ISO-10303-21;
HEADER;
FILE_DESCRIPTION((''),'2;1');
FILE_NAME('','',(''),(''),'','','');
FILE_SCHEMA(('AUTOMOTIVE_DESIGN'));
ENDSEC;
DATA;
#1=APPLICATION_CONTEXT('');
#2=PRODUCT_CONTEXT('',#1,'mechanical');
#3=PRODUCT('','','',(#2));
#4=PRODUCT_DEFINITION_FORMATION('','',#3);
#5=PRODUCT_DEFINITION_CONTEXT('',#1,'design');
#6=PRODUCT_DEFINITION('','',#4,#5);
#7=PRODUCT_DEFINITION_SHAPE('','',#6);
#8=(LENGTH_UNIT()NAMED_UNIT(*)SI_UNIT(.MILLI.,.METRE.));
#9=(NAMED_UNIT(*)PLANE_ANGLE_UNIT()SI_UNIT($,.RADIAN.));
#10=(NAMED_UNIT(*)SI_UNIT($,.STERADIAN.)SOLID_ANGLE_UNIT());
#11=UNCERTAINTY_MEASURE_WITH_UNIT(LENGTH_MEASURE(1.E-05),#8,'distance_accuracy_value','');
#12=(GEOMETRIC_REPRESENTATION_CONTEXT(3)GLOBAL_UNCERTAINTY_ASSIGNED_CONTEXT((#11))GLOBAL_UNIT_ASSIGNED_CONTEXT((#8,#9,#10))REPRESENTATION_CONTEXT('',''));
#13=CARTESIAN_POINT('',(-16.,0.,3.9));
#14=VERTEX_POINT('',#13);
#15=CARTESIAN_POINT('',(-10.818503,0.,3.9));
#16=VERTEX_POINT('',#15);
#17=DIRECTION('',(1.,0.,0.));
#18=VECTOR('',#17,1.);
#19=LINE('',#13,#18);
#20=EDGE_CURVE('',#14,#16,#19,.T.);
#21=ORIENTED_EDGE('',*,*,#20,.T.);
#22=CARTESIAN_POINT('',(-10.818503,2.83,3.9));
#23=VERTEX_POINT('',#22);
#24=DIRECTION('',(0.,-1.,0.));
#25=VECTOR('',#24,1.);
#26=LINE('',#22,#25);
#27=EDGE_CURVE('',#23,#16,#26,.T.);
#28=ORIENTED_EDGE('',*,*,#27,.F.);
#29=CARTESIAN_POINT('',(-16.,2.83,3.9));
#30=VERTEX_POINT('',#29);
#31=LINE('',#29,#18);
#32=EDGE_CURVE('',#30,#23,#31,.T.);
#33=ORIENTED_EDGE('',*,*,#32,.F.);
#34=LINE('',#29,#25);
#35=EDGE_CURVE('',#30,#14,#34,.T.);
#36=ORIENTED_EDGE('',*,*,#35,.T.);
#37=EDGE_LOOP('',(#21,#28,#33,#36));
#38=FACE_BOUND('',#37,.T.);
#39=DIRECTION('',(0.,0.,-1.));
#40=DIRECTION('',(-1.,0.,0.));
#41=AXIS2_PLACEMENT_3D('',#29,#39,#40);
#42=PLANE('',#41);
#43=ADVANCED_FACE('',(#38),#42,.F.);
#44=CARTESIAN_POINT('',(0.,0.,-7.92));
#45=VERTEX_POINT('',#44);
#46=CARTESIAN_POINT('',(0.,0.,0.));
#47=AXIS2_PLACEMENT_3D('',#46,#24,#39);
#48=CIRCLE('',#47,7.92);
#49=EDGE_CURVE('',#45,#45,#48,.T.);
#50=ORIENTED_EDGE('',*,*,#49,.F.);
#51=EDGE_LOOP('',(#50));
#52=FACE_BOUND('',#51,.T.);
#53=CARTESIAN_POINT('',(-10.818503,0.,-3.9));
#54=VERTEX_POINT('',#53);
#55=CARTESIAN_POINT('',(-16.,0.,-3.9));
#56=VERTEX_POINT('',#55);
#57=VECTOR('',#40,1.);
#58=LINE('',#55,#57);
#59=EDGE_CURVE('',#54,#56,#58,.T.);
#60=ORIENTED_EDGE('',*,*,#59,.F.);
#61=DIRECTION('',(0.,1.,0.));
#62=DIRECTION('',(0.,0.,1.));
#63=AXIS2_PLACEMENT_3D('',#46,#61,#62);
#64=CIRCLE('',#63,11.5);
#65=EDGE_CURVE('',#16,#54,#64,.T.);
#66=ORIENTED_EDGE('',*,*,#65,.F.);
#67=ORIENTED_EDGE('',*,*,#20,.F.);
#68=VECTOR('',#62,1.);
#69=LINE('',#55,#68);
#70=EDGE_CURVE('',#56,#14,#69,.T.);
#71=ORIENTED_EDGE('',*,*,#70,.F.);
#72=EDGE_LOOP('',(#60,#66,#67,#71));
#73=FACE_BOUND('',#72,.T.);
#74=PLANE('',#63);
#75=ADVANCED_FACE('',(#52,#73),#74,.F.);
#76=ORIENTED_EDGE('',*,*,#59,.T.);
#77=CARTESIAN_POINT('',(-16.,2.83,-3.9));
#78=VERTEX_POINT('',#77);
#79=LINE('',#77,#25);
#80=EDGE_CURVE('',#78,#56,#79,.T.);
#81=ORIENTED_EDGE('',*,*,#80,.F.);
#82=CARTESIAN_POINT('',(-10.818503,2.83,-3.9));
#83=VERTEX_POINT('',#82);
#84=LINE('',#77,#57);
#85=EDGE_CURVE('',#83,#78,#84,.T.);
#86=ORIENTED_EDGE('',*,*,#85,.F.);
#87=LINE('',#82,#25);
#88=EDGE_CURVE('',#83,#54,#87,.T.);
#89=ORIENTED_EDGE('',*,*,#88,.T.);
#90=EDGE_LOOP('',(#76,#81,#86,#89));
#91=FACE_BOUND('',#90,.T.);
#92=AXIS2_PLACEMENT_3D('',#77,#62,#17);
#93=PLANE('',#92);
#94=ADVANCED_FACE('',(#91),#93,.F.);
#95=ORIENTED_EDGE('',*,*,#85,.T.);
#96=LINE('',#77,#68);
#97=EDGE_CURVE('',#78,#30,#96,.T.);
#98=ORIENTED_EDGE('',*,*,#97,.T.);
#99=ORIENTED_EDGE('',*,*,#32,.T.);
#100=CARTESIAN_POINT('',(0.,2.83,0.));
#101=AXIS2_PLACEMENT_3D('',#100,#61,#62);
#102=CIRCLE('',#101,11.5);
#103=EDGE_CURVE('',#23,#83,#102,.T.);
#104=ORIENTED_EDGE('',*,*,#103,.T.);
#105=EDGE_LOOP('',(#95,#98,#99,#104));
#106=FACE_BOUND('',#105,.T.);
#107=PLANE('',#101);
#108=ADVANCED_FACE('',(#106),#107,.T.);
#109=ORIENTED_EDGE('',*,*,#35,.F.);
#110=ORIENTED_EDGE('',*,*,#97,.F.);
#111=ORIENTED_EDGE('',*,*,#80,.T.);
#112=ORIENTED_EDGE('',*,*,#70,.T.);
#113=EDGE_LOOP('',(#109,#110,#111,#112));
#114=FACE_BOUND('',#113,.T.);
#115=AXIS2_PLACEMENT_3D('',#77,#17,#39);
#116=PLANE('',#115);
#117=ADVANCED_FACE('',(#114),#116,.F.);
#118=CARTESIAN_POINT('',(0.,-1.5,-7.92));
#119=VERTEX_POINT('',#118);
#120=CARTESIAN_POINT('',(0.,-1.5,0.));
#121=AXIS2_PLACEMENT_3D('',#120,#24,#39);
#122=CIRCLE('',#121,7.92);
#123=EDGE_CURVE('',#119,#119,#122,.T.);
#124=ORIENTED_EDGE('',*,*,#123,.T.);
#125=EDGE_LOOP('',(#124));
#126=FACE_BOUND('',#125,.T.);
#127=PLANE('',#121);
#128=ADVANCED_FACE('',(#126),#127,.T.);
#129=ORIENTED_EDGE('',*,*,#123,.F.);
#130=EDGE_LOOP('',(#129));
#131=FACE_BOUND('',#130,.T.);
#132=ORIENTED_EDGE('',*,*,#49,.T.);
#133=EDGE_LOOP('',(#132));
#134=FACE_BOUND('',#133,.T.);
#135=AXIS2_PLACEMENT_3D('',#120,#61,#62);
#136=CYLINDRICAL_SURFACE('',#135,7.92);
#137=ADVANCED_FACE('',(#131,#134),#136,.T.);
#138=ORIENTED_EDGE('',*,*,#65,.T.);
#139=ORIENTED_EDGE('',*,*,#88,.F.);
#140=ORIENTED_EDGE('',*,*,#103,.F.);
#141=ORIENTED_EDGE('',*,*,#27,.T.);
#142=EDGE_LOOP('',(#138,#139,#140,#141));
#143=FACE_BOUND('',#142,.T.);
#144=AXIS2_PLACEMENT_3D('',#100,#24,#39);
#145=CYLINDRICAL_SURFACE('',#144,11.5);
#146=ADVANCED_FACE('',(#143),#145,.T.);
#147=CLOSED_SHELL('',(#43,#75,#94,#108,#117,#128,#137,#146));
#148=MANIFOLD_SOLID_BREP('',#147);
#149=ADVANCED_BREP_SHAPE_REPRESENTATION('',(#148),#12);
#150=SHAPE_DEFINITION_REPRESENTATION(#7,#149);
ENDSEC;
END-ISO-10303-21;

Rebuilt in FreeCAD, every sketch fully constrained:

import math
import FreeCAD as App
import Part
import Sketcher

doc = App.newDocument("Part")
params = doc.addObject("Spreadsheet::Sheet", "Params")
for row, (alias, value) in enumerate([
    ("sketch1_radius", "11.5 mm"),
    ("sketch1_height", "7.8 mm"),
    ("pad1_length", "2.83 mm"),
    ("sketch2_diameter", "15.84 mm"),
    ("pad2_length", "1.5 mm"),
], start=1):
    params.set(f"A{row}", alias)
    params.set(f"B{row}", "=" + value)
    params.setAlias(f"B{row}", alias)

body = doc.addObject("PartDesign::Body", "Body")

sketch1 = body.newObject("Sketcher::SketchObject", "Sketch")
sketch1.AttachmentSupport = (doc.getObject("XZ_Plane"), [""])
sketch1.MapMode = "FlatFace"
sketch1.addGeometry([
    Part.LineSegment(App.Vector(-11, -4, 0), App.Vector(-16, -4, 0)),
    Part.LineSegment(App.Vector(-16, -4, 0), App.Vector(-16, 4, 0)),
    Part.LineSegment(App.Vector(-16, 4, 0), App.Vector(-11, 4, 0)),
    Part.ArcOfCircle(Part.Circle(App.Vector(0, 0, 0), App.Vector(0, 0, 1), 12), math.radians(-160), math.radians(160)),
], False)
sketch1.addConstraint([
    Sketcher.Constraint("Coincident", 0, 2, 1, 1),
    Sketcher.Constraint("Coincident", 1, 2, 2, 1),
    Sketcher.Constraint("Coincident", 2, 2, 3, 2),
    Sketcher.Constraint("Coincident", 3, 1, 0, 1),
    Sketcher.Constraint("Horizontal", 0),
    Sketcher.Constraint("Vertical", 1),
    Sketcher.Constraint("Horizontal", 2),
    Sketcher.Constraint("Coincident", 3, 3, -1, 1),
    Sketcher.Constraint("Vertical", 2, 2, 3, 1),
    Sketcher.Constraint("Radius", 3, 11.5),
    Sketcher.Constraint("DistanceY", 1, 1, 1, 2, 7.8),
    Sketcher.Constraint("DistanceX", 0, 2, -1, 1, 16.0),
])
sketch1.setExpression("Constraints[9]", "Params.sketch1_radius")
sketch1.setExpression("Constraints[10]", "Params.sketch1_height")
pad1 = body.newObject("PartDesign::Pad", "Pad")
pad1.Profile = sketch1
pad1.setExpression("Length", "Params.pad1_length")
pad1.Reversed = True

sketch2 = body.newObject("Sketcher::SketchObject", "Sketch001")
sketch2.AttachmentSupport = (doc.getObject("XZ_Plane"), [""])
sketch2.MapMode = "FlatFace"
sketch2.addGeometry(Part.Circle(App.Vector(0, 0, 0), App.Vector(0, 0, 1), 8), False)
sketch2.addConstraint([
    Sketcher.Constraint("Coincident", 0, 3, -1, 1),
    Sketcher.Constraint("Diameter", 0, 15.84),
])
sketch2.setExpression("Constraints[1]", "Params.sketch2_diameter")
pad2 = body.newObject("PartDesign::Pad", "Pad001")
pad2.Profile = sketch2
pad2.setExpression("Length", "Params.pad2_length")

doc.recompute()
